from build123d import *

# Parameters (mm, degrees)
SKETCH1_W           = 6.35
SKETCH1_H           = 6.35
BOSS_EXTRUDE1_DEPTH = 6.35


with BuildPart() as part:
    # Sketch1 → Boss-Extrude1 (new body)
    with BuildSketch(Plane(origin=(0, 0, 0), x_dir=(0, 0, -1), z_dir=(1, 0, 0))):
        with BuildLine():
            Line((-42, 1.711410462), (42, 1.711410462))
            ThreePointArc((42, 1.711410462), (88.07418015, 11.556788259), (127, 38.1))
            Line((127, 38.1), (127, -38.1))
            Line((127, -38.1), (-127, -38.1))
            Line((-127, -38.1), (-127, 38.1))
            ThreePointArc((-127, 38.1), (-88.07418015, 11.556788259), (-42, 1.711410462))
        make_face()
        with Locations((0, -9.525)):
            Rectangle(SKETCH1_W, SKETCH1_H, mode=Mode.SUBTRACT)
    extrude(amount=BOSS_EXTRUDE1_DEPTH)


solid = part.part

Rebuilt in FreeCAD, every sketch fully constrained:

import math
import FreeCAD as App
import Part
import Sketcher

V = App.Vector
Q = App.Units.Quantity


def add_polygon(sketch, points):
    """Adds a closed chain of lines whose ends are joined by coincident constraints."""
    first, n = sketch.GeometryCount, len(points)
    for a, b in zip(points, points[1:] + points[:1]):
        sketch.addGeometry(Part.LineSegment(App.Vector(*a, 0), App.Vector(*b, 0)), False)
    for i in range(n):
        sketch.addConstraint(Sketcher.Constraint("Coincident", first + i, 2, first + (i + 1) % n, 1))

doc = App.newDocument("Part")
body = doc.addObject("PartDesign::Body", "Body")

# Sketch on YZ plane
sketch1 = doc.addObject("Sketcher::SketchObject", "Sketch")
body.addObject(sketch1)
sketch1.AttachmentSupport = (doc.YZ_Plane, [""])
sketch1.MapMode = "FlatFace"
sketch1.addGeometry(Part.LineSegment(V(2, -42, 0), V(2, 42, 0)), False)  # 0
sketch1.addGeometry(Part.ArcOfCircle(Part.Circle(V(124, 40, 0), V(0, 0, 1), 122), math.radians(135), math.radians(179)), False)  # 1
sketch1.addGeometry(Part.LineSegment(V(38, 127, 0), V(-38, 127, 0)), False)  # 2
sketch1.addGeometry(Part.LineSegment(V(-38, 127, 0), V(-38, -127, 0)), False)  # 3
sketch1.addGeometry(Part.LineSegment(V(-38, -127, 0), V(38, -127, 0)), False)  # 4
sketch1.addGeometry(Part.ArcOfCircle(Part.Circle(V(124, -40, 0), V(0, 0, 1), 122), math.radians(-179), math.radians(-135)), False)  # 5
add_polygon(sketch1, [(-13, 3), (-6, 3), (-6, -3), (-13, -3)])  # lines 6-9
sketch1.addConstraint([
    Sketcher.Constraint("Coincident", 0, 2, 1, 2),
    Sketcher.Constraint("Coincident", 1, 1, 2, 1),
    Sketcher.Constraint("Coincident", 2, 2, 3, 1),
    Sketcher.Constraint("Coincident", 3, 2, 4, 1),
    Sketcher.Constraint("Coincident", 4, 2, 5, 2),
    Sketcher.Constraint("Coincident", 5, 1, 0, 1),
    Sketcher.Constraint("Vertical", 0),
    Sketcher.Constraint("Horizontal", 2),
    Sketcher.Constraint("Vertical", 3),
    Sketcher.Constraint("Horizontal", 4),
    Sketcher.Constraint("Horizontal", 6),
    Sketcher.Constraint("Vertical", 7),
    Sketcher.Constraint("Horizontal", 8),
    Sketcher.Constraint("Vertical", 9),
    Sketcher.Constraint("Equal", 1, 5),
    Sketcher.Constraint("Symmetric", 1, 1, 3, 2, -1, 1),
    Sketcher.Constraint("Symmetric", 1, 3, 5, 3, -1),
    Sketcher.Constraint("Equal", 8, 7),
    Sketcher.Constraint("DistanceX", 2, 2, 2, 1, Q("3 in")),
    Sketcher.Constraint("DistanceY", 3, 2, 3, 1, Q("10 in")),
    Sketcher.Constraint("DistanceX", 3, 2, 8, 2, Q("1 in")),
    Sketcher.Constraint("DistanceX", 6, 1, 6, 2, Q("0.25 in")),
    Sketcher.Constraint("DistanceY", -1, 1, 6, 2, Q("0.125 in")),
    Sketcher.Constraint("DistanceY", 0, 1, 0, 2, 84.0),
    Sketcher.Constraint("Radius", 1, 122.209274),
    Sketcher.Constraint("DistanceX", -1, 1, 1, 3, 123.90396),
])
pad1 = doc.addObject("PartDesign::Pad", "Pad")
body.addObject(pad1)
pad1.Profile = sketch1
pad1.Length = Q("0.25 in")

doc.recompute()
